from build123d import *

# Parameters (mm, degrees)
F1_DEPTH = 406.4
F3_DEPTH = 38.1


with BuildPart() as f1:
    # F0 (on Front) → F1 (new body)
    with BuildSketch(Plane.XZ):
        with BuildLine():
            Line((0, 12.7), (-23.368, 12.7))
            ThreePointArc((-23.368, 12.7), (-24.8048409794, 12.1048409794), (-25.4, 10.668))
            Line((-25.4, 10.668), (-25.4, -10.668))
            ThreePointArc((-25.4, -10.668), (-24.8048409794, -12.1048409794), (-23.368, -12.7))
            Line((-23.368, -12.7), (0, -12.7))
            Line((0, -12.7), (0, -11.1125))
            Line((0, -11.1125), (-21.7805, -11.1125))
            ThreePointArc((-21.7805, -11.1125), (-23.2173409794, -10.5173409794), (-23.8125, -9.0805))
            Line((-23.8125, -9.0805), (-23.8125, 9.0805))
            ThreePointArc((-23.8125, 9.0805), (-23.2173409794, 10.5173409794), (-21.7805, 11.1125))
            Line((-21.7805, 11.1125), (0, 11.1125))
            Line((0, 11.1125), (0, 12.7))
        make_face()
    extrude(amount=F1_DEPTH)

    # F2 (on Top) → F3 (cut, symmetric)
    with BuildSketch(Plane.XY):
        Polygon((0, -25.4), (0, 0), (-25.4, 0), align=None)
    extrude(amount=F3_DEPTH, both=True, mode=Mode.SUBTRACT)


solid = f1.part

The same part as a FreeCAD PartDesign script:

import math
import FreeCAD as App
import Part
import Sketcher
Q = App.Units.Quantity


def add_polygon(sketch, points):
    """Adds a closed chain of lines whose ends are joined by coincident constraints."""
    first, n = sketch.GeometryCount, len(points)
    for a, b in zip(points, points[1:] + points[:1]):
        sketch.addGeometry(Part.LineSegment(App.Vector(*a, 0), App.Vector(*b, 0)), False)
    for i in range(n):
        sketch.addConstraint(Sketcher.Constraint("Coincident", first + i, 2, first + (i + 1) % n, 1))

doc = App.newDocument("Part")
params = doc.addObject("Spreadsheet::Sheet", "Params")
for row, (alias, value) in enumerate([
    ("sketch1_radius", "0.08 in"),
    ("sketch1_height", "0.84 in"),
    ("sketch1_height2", "0.0625 in"),
    ("pad1_length", "16 in"),
    ("sketch2_width", "1 in"),
    ("pocket1_length", "3 in"),
], start=1):
    params.set(f"A{row}", alias)
    params.set(f"B{row}", "=" + value)
    params.setAlias(f"B{row}", alias)

body = doc.addObject("PartDesign::Body", "Body")

# Sketch on XZ plane
sketch1 = body.newObject("Sketcher::SketchObject", "Sketch")
sketch1.AttachmentSupport = (doc.getObject("XZ_Plane"), [""])
sketch1.MapMode = "FlatFace"
sketch1.addGeometry([
    Part.LineSegment(App.Vector(0, 12.7, 0), App.Vector(-23.4, 12.7, 0)),  # 0
    Part.ArcOfCircle(Part.Circle(App.Vector(-23.4, 10.7, 0), App.Vector(0, 0, 1), 2), math.radians(90), math.radians(180)),  # 1
    Part.LineSegment(App.Vector(-25.4, 10.7, 0), App.Vector(-25.4, -10.7, 0)),  # 2
    Part.ArcOfCircle(Part.Circle(App.Vector(-23.4, -10.7, 0), App.Vector(0, 0, 1), 2), math.radians(180), math.radians(270)),  # 3
    Part.LineSegment(App.Vector(-23.4, -12.7, 0), App.Vector(0, -12.7, 0)),  # 4
    Part.LineSegment(App.Vector(0, -12.7, 0), App.Vector(0, -11.1, 0)),  # 5
    Part.LineSegment(App.Vector(0, -11.1, 0), App.Vector(-21.8, -11.1, 0)),  # 6
    Part.ArcOfCircle(Part.Circle(App.Vector(-21.8, -9.1, 0), App.Vector(0, 0, 1), 2), math.radians(180), math.radians(270)),  # 7
    Part.LineSegment(App.Vector(-23.8, -9.1, 0), App.Vector(-23.8, 9.1, 0)),  # 8
    Part.ArcOfCircle(Part.Circle(App.Vector(-21.8, 9.1, 0), App.Vector(0, 0, 1), 2), math.radians(90), math.radians(180)),  # 9
    Part.LineSegment(App.Vector(-21.8, 11.1, 0), App.Vector(0, 11.1, 0)),  # 10
    Part.LineSegment(App.Vector(0, 11.1, 0), App.Vector(0, 12.7, 0)),  # 11
], False)
sketch1.addConstraint([
    Sketcher.Constraint("Tangent", 0, 2, 1, 1),
    Sketcher.Constraint("Tangent", 1, 2, 2, 1),
    Sketcher.Constraint("Tangent", 2, 2, 3, 1),
    Sketcher.Constraint("Tangent", 3, 2, 4, 1),
    Sketcher.Constraint("Coincident", 4, 2, 5, 1),
    Sketcher.Constraint("Coincident", 5, 2, 6, 1),
    Sketcher.Constraint("Tangent", 6, 2, 7, 2),
    Sketcher.Constraint("Tangent", 7, 1, 8, 1),
    Sketcher.Constraint("Tangent", 8, 2, 9, 2),
    Sketcher.Constraint("Tangent", 9, 1, 10, 1),
    Sketcher.Constraint("Coincident", 10, 2, 11, 1),
    Sketcher.Constraint("Coincident", 11, 2, 0, 1),
    Sketcher.Constraint("Horizontal", 0),
    Sketcher.Constraint("Vertical", 2),
    Sketcher.Constraint("Horizontal", 4),
    Sketcher.Constraint("Vertical", 5),
    Sketcher.Constraint("Horizontal", 6),
    Sketcher.Constraint("Vertical", 8),
    Sketcher.Constraint("Horizontal", 10),
    Sketcher.Constraint("Vertical", 11),
    Sketcher.Constraint("Equal", 1, 3),
    Sketcher.Constraint("Equal", 3, 7),
    Sketcher.Constraint("Equal", 7, 9),
    Sketcher.Constraint("Symmetric", 5, 2, 10, 2, -1, 1),
    Sketcher.Constraint("Symmetric", 4, 2, 11, 2, -1),
    Sketcher.Constraint("Radius", 1, Q("0.08 in")),
    Sketcher.Constraint("DistanceX", 1, 2, -1, 1, Q("1 in")),
    Sketcher.Constraint("DistanceY", 2, 2, 2, 1, Q("0.84 in")),
    Sketcher.Constraint("DistanceY", 5, 1, 5, 2, Q("0.0625 in")),
    Sketcher.Constraint("DistanceX", 6, 2, 6, 1, Q("0.8575 in")),
])
sketch1.setExpression("Constraints[25]", "Params.sketch1_radius")
sketch1.setExpression("Constraints[27]", "Params.sketch1_height")
sketch1.setExpression("Constraints[28]", "Params.sketch1_height2")
pad1 = body.newObject("PartDesign::Pad", "Pad")
pad1.Profile = sketch1
pad1.setExpression("Length", "Params.pad1_length")

# Sketch on XY plane
sketch2 = body.newObject("Sketcher::SketchObject", "Sketch001")
sketch2.AttachmentSupport = (doc.getObject("XY_Plane"), [""])
sketch2.MapMode = "FlatFace"
add_polygon(sketch2, [(0, -25), (0, 0), (-25, 0)])  # lines 0-2
sketch2.addConstraint([
    Sketcher.Constraint("Vertical", 0),
    Sketcher.Constraint("Horizontal", 1),
    Sketcher.Constraint("Coincident", 0, 2, -1, 1),
    Sketcher.Constraint("Equal", 1, 0),
    Sketcher.Constraint("DistanceX", 1, 2, 1, 1, Q("1 in")),
])
sketch2.setExpression("Constraints[7]", "Params.sketch2_width")
pocket1 = body.newObject("PartDesign::Pocket", "Pocket")
pocket1.Profile = sketch2
pocket1.setExpression("Length", "Params.pocket1_length")
pocket1.Midplane = True

doc.recompute()
